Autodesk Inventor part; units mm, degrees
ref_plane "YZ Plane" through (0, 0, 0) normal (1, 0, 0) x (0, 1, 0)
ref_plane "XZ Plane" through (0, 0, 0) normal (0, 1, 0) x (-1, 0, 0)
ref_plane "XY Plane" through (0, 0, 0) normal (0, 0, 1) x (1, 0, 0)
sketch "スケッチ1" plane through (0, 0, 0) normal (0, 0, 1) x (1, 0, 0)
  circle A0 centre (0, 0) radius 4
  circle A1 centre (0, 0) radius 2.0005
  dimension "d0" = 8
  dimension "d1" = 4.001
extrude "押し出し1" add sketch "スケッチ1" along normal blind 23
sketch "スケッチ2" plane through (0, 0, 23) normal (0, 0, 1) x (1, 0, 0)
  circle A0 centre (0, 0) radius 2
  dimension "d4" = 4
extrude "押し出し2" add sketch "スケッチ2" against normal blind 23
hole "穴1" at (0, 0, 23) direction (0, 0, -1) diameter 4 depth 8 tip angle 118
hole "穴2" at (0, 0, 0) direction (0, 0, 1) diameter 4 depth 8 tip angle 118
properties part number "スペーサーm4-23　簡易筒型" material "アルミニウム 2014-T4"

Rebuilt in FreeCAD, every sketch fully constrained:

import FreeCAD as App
import Part
import Sketcher

V = App.Vector

doc = App.newDocument("Part")
body = doc.addObject("PartDesign::Body", "Body")
body.AllowCompound = True

# Sketch on XY plane
sketch1 = body.newObject("Sketcher::SketchObject", "Sketch")
sketch1.AttachmentSupport = (doc.getObject("XY_Plane"), [""])
sketch1.MapMode = "FlatFace"
sketch1.addGeometry([
    Part.Circle(V(0, 0, 0), V(0, 0, 1), 4),
    Part.Circle(V(0, 0, 0), V(0, 0, 1), 2),
], False)
sketch1.addConstraint([
    Sketcher.Constraint("Coincident", 0, 3, -1, 1),
    Sketcher.Constraint("Coincident", 1, 3, -1, 1),
    Sketcher.Constraint("Diameter", 0, 8.0),
    Sketcher.Constraint("Diameter", 1, 4.001),
])
pad1 = body.newObject("PartDesign::Pad", "Pad")
pad1.Profile = sketch1
pad1.Length = 23

# Sketch on XY plane
sketch2 = body.newObject("Sketcher::SketchObject", "Sketch001")
sketch2.AttachmentSupport = (doc.getObject("XY_Plane"), [""])
sketch2.MapMode = "FlatFace"
sketch2.AttachmentOffset = App.Placement(V(0, 0, 23), App.Rotation())
sketch2.addGeometry(Part.Circle(V(0, 0, 0), V(0, 0, 1), 2), False)
sketch2.addConstraint([
    Sketcher.Constraint("Coincident", 0, 3, -1, 1),
    Sketcher.Constraint("Diameter", 0, 4.0),
])
pad2 = body.newObject("PartDesign::Pad", "Pad001")
pad2.Profile = sketch2
pad2.Length = 23
pad2.Reversed = True

# Sketch on XY plane
sketch3 = body.newObject("Sketcher::SketchObject", "Sketch002")
sketch3.AttachmentSupport = (doc.getObject("XY_Plane"), [""])
sketch3.MapMode = "FlatFace"
sketch3.AttachmentOffset = App.Placement(V(0, 0, 23), App.Rotation())
sketch3.addGeometry(Part.Circle(V(0, 0, 0), V(0, 0, 1), 2), False)
sketch3.addConstraint([
    Sketcher.Constraint("Coincident", 0, 3, -1, 1),
    Sketcher.Constraint("Diameter", 0, 4.0),
])
doc.recompute()
hole = body.newObject("PartDesign::Hole", "Hole")
hole.Profile = sketch3
hole.ThreadType = "None"
hole.Diameter = 4
hole.DepthType = "Dimension"
hole.Depth = 8
hole.DrillPoint = "Angled"
hole.DrillPointAngle = 118

# Sketch on XY plane
sketch4 = body.newObject("Sketcher::SketchObject", "Sketch003")
sketch4.AttachmentSupport = (doc.getObject("XY_Plane"), [""])
sketch4.MapMode = "FlatFace"
sketch4.addGeometry(Part.Circle(V(0, 0, 0), V(0, 0, 1), 2), False)
sketch4.addConstraint([
    Sketcher.Constraint("Coincident", 0, 3, -1, 1),
    Sketcher.Constraint("Diameter", 0, 4.0),
])
doc.recompute()
hole2 = body.newObject("PartDesign::Hole", "Hole001")
hole2.Profile = sketch4
hole2.ThreadType = "None"
hole2.Diameter = 4
hole2.DepthType = "Dimension"
hole2.Depth = 8
hole2.DrillPoint = "Angled"
hole2.DrillPointAngle = 118
hole2.Reversed = True

doc.recompute()
